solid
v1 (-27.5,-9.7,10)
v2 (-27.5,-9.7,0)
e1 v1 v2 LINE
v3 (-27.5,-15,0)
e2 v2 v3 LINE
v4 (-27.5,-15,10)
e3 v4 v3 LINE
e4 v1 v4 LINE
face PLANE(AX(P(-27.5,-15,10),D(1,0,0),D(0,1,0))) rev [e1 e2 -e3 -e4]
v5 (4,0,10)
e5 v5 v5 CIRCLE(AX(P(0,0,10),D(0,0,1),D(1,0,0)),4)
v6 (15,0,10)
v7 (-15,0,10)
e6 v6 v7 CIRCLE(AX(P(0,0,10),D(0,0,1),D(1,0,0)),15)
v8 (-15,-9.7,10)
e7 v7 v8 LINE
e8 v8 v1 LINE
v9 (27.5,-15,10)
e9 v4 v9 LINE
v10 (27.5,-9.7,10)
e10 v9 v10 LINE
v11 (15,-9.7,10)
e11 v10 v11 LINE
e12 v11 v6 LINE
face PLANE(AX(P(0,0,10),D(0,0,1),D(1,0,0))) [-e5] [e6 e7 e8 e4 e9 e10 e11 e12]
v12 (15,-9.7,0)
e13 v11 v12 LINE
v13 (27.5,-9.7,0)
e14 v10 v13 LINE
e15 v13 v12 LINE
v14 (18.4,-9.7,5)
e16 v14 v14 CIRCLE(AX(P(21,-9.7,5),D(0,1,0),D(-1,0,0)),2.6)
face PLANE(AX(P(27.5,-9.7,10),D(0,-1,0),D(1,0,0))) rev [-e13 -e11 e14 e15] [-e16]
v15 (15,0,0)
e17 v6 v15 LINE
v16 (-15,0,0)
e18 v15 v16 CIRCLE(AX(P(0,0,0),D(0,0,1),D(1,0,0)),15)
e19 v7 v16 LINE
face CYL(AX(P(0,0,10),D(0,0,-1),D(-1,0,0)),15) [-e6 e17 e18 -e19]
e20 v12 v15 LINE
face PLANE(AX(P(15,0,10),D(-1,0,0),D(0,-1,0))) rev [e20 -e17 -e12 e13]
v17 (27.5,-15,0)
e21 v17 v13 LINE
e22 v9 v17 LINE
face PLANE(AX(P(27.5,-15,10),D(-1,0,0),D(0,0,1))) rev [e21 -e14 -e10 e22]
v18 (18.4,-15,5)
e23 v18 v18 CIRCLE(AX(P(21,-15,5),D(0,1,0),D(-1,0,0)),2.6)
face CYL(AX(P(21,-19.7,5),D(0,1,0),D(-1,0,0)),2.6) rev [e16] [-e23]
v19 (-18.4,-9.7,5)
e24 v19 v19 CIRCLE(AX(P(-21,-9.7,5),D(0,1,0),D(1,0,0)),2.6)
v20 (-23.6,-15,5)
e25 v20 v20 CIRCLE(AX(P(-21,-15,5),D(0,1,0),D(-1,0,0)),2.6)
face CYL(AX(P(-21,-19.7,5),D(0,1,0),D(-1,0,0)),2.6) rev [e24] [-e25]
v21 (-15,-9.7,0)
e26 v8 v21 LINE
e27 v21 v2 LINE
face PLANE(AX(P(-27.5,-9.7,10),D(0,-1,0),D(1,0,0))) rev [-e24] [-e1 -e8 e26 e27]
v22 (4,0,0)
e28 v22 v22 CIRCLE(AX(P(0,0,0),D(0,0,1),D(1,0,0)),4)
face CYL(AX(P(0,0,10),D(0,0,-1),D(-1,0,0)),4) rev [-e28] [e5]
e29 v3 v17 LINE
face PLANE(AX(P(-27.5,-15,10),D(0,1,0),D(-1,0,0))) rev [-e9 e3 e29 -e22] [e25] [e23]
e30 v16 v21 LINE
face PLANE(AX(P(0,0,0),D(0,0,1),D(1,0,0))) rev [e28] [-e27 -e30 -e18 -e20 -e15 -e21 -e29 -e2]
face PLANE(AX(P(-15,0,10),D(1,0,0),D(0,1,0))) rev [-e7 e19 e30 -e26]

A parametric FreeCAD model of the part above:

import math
import FreeCAD as App
import Part
import Sketcher

V = App.Vector
Q = App.Units.Quantity

doc = App.newDocument("Part")
body = doc.addObject("PartDesign::Body", "Body")

sketch1 = body.newObject("Sketcher::SketchObject", "Sketch")
sketch1.AttachmentSupport = (doc.getObject("XY_Plane"), [""])
sketch1.MapMode = "FlatFace"
sketch1.addGeometry([
    Part.LineSegment(V(-27.5, -15, 0), V(27.5, -15, 0)),
    Part.LineSegment(V(27.5, -15, 0), V(27.5, -9.7, 0)),
    Part.LineSegment(V(27.5, -9.7, 0), V(15, -9.7, 0)),
    Part.LineSegment(V(15, -9.7, 0), V(15, 0, 0)),
    Part.ArcOfCircle(Part.Circle(V(0, 0, 0), V(0, 0, 1), 15), math.radians(0), math.radians(180)),
    Part.LineSegment(V(-15, 0, 0), V(-15, -9.7, 0)),
    Part.LineSegment(V(-15, -9.7, 0), V(-27.5, -9.7, 0)),
    Part.LineSegment(V(-27.5, -9.7, 0), V(-27.5, -15, 0)),
    Part.Circle(V(0, 0, 0), V(0, 0, 1), 4),
], False)
sketch1.addConstraint([
    Sketcher.Constraint("Coincident", 0, 2, 1, 1),
    Sketcher.Constraint("Coincident", 1, 2, 2, 1),
    Sketcher.Constraint("Coincident", 2, 2, 3, 1),
    Sketcher.Constraint("Tangent", 3, 2, 4, 1),
    Sketcher.Constraint("Tangent", 4, 2, 5, 1),
    Sketcher.Constraint("Coincident", 5, 2, 6, 1),
    Sketcher.Constraint("Coincident", 6, 2, 7, 1),
    Sketcher.Constraint("Coincident", 7, 2, 0, 1),
    Sketcher.Constraint("Horizontal", 0),
    Sketcher.Constraint("Vertical", 1),
    Sketcher.Constraint("Horizontal", 2),
    Sketcher.Constraint("Vertical", 3),
    Sketcher.Constraint("Vertical", 5),
    Sketcher.Constraint("Horizontal", 6),
    Sketcher.Constraint("Vertical", 7),
    Sketcher.Constraint("Coincident", 4, 3, -1, 1),
    Sketcher.Constraint("Coincident", 8, 3, -1, 1),
    Sketcher.Constraint("Symmetric", 1, 2, 6, 2, -2),
    Sketcher.Constraint("Diameter", 8, Q("8 mm")),
    Sketcher.Constraint("Radius", 4, Q("15 mm")),
    Sketcher.Constraint("DistanceX", 0, 1, 0, 2, Q("55 mm")),
    Sketcher.Constraint("DistanceY", 1, 1, 1, 2, Q("5.3 mm")),
    Sketcher.Constraint("DistanceY", 3, 1, 3, 2, Q("9.7 mm")),
])
pad1 = body.newObject("PartDesign::Pad", "Pad")
pad1.Profile = sketch1
pad1.Length = 10

sketch2 = body.newObject("Sketcher::SketchObject", "Sketch001")
sketch2.AttachmentSupport = (doc.getObject("XZ_Plane"), [""])
sketch2.MapMode = "FlatFace"
sketch2.AttachmentOffset = App.Placement(V(0, 0, 9.7), App.Rotation())
sketch2.addGeometry([
    Part.Circle(V(21, 5, 0), V(0, 0, 1), 2.6),
    Part.Circle(V(-21, 5, 0), V(0, 0, 1), 2.6),
], False)
sketch2.addConstraint([
    Sketcher.Constraint("Equal", 0, 1),
    Sketcher.Constraint("Symmetric", 0, 3, 1, 3, -2),
    Sketcher.Constraint("Diameter", 0, Q("5.2 mm")),
    Sketcher.Constraint("DistanceX", -1, 1, 0, 3, Q("21 mm")),
    Sketcher.Constraint("DistanceY", -1, 1, 0, 3, Q("5 mm")),
])
pocket1 = body.newObject("PartDesign::Pocket", "Pocket")
pocket1.Profile = sketch2
pocket1.Length = 10
pocket1.Reversed = True

doc.recompute()
